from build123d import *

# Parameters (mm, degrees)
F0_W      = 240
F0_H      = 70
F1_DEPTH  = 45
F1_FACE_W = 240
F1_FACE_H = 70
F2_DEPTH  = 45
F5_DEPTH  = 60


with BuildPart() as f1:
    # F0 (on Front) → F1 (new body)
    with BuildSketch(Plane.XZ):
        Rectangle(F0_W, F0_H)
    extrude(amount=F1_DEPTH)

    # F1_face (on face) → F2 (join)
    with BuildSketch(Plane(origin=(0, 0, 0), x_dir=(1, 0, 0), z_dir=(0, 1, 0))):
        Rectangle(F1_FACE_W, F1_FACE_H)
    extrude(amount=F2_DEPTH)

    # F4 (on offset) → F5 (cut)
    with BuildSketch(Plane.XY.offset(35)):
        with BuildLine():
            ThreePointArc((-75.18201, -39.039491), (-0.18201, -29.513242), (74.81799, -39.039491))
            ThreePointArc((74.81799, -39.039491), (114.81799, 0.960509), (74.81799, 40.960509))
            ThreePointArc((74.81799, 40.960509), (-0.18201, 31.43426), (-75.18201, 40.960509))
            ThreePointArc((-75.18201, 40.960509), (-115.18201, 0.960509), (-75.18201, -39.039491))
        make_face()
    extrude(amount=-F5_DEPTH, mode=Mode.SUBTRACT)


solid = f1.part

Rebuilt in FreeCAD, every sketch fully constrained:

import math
import FreeCAD as App
import Part
import Sketcher
from FreeCAD import Vector
Q = App.Units.Quantity


def add_polygon(sketch, points):
    """Adds a closed chain of lines whose ends are joined by coincident constraints."""
    first, n = sketch.GeometryCount, len(points)
    for a, b in zip(points, points[1:] + points[:1]):
        sketch.addGeometry(Part.LineSegment(App.Vector(*a, 0), App.Vector(*b, 0)), False)
    for i in range(n):
        sketch.addConstraint(Sketcher.Constraint("Coincident", first + i, 2, first + (i + 1) % n, 1))

doc = App.newDocument("Part")
params = doc.addObject("Spreadsheet::Sheet", "Params")
for row, (alias, value) in enumerate([
    ("sketch1_width", "240 mm"),
    ("sketch1_height", "70 mm"),
    ("pad1_length", "45 mm"),
    ("sketch2_width", "240 mm"),
    ("sketch2_height", "70 mm"),
    ("pad2_length", "45 mm"),
    ("sketch3_radius", "300.000001 mm"),
    ("sketch3_radius2", "40 mm"),
    ("pocket1_length", "60 mm"),
], start=1):
    params.set(f"A{row}", alias)
    params.set(f"B{row}", "=" + value)
    params.setAlias(f"B{row}", alias)

body = doc.addObject("PartDesign::Body", "Body")

# Sketch on XZ plane
sketch1 = doc.addObject("Sketcher::SketchObject", "Sketch")
body.addObject(sketch1)
sketch1.AttachmentSupport = (doc.XZ_Plane, [""])
sketch1.MapMode = "FlatFace"
add_polygon(sketch1, [(-120, 35), (-120, -35), (120, -35), (120, 35)])  # lines 0-3
sketch1.addConstraint(Sketcher.Constraint("Vertical", 0))
sketch1.addConstraint(Sketcher.Constraint("Horizontal", 1))
sketch1.addConstraint(Sketcher.Constraint("Vertical", 2))
sketch1.addConstraint(Sketcher.Constraint("Horizontal", 3))
sketch1.addConstraint(Sketcher.Constraint("Symmetric", 0, 2, 2, 2, -1, 1))
sketch1.addConstraint(Sketcher.Constraint("DistanceX", 1, 1, 1, 2, Q("240 mm")))
sketch1.addConstraint(Sketcher.Constraint("DistanceY", 0, 2, 0, 1, Q("70 mm")))
sketch1.setExpression("Constraints[9]", "Params.sketch1_width")
sketch1.setExpression("Constraints[10]", "Params.sketch1_height")
pad1 = doc.addObject("PartDesign::Pad", "Pad")
body.addObject(pad1)
pad1.Profile = sketch1
pad1.setExpression("Length", "Params.pad1_length")

# Sketch on XZ plane
sketch2 = doc.addObject("Sketcher::SketchObject", "Sketch001")
body.addObject(sketch2)
sketch2.AttachmentSupport = (doc.XZ_Plane, [""])
sketch2.MapMode = "FlatFace"
add_polygon(sketch2, [(-120, -35), (-120, 35), (120, 35), (120, -35)])  # lines 0-3
sketch2.addConstraint(Sketcher.Constraint("Vertical", 0))
sketch2.addConstraint(Sketcher.Constraint("Horizontal", 1))
sketch2.addConstraint(Sketcher.Constraint("Vertical", 2))
sketch2.addConstraint(Sketcher.Constraint("Horizontal", 3))
sketch2.addConstraint(Sketcher.Constraint("Symmetric", 0, 2, 2, 2, -1, 1))
sketch2.addConstraint(Sketcher.Constraint("DistanceX", 1, 1, 1, 2, Q("240 mm")))
sketch2.addConstraint(Sketcher.Constraint("DistanceY", 0, 1, 0, 2, Q("70 mm")))
sketch2.setExpression("Constraints[9]", "Params.sketch2_width")
sketch2.setExpression("Constraints[10]", "Params.sketch2_height")
pad2 = doc.addObject("PartDesign::Pad", "Pad001")
body.addObject(pad2)
pad2.Profile = sketch2
pad2.setExpression("Length", "Params.pad2_length")
pad2.Reversed = True

# Sketch on XY plane
sketch3 = doc.addObject("Sketcher::SketchObject", "Sketch002")
body.addObject(sketch3)
sketch3.AttachmentSupport = (doc.XY_Plane, [""])
sketch3.MapMode = "FlatFace"
sketch3.AttachmentOffset = App.Placement(Vector(0, 0, 35), App.Rotation())
sketch3.addGeometry(Part.ArcOfCircle(Part.Circle(Vector(-0.18201, -329.513243, 0), Vector(0, 0, 1), 300.000001), math.radians(75.522488), math.radians(104.477512)), False)
sketch3.addGeometry(Part.ArcOfCircle(Part.Circle(Vector(74.81799, 0.960509, 0), Vector(0, 0, 1), 40), math.radians(-90), math.radians(90)), False)
sketch3.addGeometry(Part.ArcOfCircle(Part.Circle(Vector(-0.18201, 331.434261, 0), Vector(0, 0, 1), 300.000001), math.radians(-104.477512), math.radians(-75.522488)), False)
sketch3.addGeometry(Part.ArcOfCircle(Part.Circle(Vector(-75.18201, 0.960509, 0), Vector(0, 0, 1), 40), math.radians(90), math.radians(270)), False)
sketch3.addConstraint(Sketcher.Constraint("Coincident", 0, 1, 1, 1))
sketch3.addConstraint(Sketcher.Constraint("Coincident", 1, 2, 2, 2))
sketch3.addConstraint(Sketcher.Constraint("Coincident", 2, 1, 3, 1))
sketch3.addConstraint(Sketcher.Constraint("Coincident", 3, 2, 0, 2))
sketch3.addConstraint(Sketcher.Constraint("Equal", 0, 2))
sketch3.addConstraint(Sketcher.Constraint("Equal", 1, 3))
sketch3.addConstraint(Sketcher.Constraint("Horizontal", 1, 3, 3, 3))
sketch3.addConstraint(Sketcher.Constraint("Vertical", 0, 3, 2, 3))
sketch3.addConstraint(Sketcher.Constraint("Vertical", 1, 3, 0, 1))
sketch3.addConstraint(Sketcher.Constraint("Vertical", 0, 1, 1, 2))
sketch3.addConstraint(Sketcher.Constraint("Vertical", 3, 3, 2, 1))
sketch3.addConstraint(Sketcher.Constraint("Radius", 0, Q("300.000001 mm")))
sketch3.addConstraint(Sketcher.Constraint("Radius", 1, Q("40 mm")))
sketch3.addConstraint(Sketcher.Constraint("DistanceX", 0, 3, 1, 3, Q("75 mm")))
sketch3.addConstraint(Sketcher.Constraint("DistanceX", 0, 3, -1, 1, Q("0.18201 mm")))
sketch3.addConstraint(Sketcher.Constraint("DistanceY", -1, 1, 1, 3, Q("0.960509 mm")))
sketch3.setExpression("Constraints[11]", "Params.sketch3_radius")
sketch3.setExpression("Constraints[12]", "Params.sketch3_radius2")
pocket1 = doc.addObject("PartDesign::Pocket", "Pocket")
body.addObject(pocket1)
pocket1.Profile = sketch3
pocket1.setExpression("Length", "Params.pocket1_length")

doc.recompute()
